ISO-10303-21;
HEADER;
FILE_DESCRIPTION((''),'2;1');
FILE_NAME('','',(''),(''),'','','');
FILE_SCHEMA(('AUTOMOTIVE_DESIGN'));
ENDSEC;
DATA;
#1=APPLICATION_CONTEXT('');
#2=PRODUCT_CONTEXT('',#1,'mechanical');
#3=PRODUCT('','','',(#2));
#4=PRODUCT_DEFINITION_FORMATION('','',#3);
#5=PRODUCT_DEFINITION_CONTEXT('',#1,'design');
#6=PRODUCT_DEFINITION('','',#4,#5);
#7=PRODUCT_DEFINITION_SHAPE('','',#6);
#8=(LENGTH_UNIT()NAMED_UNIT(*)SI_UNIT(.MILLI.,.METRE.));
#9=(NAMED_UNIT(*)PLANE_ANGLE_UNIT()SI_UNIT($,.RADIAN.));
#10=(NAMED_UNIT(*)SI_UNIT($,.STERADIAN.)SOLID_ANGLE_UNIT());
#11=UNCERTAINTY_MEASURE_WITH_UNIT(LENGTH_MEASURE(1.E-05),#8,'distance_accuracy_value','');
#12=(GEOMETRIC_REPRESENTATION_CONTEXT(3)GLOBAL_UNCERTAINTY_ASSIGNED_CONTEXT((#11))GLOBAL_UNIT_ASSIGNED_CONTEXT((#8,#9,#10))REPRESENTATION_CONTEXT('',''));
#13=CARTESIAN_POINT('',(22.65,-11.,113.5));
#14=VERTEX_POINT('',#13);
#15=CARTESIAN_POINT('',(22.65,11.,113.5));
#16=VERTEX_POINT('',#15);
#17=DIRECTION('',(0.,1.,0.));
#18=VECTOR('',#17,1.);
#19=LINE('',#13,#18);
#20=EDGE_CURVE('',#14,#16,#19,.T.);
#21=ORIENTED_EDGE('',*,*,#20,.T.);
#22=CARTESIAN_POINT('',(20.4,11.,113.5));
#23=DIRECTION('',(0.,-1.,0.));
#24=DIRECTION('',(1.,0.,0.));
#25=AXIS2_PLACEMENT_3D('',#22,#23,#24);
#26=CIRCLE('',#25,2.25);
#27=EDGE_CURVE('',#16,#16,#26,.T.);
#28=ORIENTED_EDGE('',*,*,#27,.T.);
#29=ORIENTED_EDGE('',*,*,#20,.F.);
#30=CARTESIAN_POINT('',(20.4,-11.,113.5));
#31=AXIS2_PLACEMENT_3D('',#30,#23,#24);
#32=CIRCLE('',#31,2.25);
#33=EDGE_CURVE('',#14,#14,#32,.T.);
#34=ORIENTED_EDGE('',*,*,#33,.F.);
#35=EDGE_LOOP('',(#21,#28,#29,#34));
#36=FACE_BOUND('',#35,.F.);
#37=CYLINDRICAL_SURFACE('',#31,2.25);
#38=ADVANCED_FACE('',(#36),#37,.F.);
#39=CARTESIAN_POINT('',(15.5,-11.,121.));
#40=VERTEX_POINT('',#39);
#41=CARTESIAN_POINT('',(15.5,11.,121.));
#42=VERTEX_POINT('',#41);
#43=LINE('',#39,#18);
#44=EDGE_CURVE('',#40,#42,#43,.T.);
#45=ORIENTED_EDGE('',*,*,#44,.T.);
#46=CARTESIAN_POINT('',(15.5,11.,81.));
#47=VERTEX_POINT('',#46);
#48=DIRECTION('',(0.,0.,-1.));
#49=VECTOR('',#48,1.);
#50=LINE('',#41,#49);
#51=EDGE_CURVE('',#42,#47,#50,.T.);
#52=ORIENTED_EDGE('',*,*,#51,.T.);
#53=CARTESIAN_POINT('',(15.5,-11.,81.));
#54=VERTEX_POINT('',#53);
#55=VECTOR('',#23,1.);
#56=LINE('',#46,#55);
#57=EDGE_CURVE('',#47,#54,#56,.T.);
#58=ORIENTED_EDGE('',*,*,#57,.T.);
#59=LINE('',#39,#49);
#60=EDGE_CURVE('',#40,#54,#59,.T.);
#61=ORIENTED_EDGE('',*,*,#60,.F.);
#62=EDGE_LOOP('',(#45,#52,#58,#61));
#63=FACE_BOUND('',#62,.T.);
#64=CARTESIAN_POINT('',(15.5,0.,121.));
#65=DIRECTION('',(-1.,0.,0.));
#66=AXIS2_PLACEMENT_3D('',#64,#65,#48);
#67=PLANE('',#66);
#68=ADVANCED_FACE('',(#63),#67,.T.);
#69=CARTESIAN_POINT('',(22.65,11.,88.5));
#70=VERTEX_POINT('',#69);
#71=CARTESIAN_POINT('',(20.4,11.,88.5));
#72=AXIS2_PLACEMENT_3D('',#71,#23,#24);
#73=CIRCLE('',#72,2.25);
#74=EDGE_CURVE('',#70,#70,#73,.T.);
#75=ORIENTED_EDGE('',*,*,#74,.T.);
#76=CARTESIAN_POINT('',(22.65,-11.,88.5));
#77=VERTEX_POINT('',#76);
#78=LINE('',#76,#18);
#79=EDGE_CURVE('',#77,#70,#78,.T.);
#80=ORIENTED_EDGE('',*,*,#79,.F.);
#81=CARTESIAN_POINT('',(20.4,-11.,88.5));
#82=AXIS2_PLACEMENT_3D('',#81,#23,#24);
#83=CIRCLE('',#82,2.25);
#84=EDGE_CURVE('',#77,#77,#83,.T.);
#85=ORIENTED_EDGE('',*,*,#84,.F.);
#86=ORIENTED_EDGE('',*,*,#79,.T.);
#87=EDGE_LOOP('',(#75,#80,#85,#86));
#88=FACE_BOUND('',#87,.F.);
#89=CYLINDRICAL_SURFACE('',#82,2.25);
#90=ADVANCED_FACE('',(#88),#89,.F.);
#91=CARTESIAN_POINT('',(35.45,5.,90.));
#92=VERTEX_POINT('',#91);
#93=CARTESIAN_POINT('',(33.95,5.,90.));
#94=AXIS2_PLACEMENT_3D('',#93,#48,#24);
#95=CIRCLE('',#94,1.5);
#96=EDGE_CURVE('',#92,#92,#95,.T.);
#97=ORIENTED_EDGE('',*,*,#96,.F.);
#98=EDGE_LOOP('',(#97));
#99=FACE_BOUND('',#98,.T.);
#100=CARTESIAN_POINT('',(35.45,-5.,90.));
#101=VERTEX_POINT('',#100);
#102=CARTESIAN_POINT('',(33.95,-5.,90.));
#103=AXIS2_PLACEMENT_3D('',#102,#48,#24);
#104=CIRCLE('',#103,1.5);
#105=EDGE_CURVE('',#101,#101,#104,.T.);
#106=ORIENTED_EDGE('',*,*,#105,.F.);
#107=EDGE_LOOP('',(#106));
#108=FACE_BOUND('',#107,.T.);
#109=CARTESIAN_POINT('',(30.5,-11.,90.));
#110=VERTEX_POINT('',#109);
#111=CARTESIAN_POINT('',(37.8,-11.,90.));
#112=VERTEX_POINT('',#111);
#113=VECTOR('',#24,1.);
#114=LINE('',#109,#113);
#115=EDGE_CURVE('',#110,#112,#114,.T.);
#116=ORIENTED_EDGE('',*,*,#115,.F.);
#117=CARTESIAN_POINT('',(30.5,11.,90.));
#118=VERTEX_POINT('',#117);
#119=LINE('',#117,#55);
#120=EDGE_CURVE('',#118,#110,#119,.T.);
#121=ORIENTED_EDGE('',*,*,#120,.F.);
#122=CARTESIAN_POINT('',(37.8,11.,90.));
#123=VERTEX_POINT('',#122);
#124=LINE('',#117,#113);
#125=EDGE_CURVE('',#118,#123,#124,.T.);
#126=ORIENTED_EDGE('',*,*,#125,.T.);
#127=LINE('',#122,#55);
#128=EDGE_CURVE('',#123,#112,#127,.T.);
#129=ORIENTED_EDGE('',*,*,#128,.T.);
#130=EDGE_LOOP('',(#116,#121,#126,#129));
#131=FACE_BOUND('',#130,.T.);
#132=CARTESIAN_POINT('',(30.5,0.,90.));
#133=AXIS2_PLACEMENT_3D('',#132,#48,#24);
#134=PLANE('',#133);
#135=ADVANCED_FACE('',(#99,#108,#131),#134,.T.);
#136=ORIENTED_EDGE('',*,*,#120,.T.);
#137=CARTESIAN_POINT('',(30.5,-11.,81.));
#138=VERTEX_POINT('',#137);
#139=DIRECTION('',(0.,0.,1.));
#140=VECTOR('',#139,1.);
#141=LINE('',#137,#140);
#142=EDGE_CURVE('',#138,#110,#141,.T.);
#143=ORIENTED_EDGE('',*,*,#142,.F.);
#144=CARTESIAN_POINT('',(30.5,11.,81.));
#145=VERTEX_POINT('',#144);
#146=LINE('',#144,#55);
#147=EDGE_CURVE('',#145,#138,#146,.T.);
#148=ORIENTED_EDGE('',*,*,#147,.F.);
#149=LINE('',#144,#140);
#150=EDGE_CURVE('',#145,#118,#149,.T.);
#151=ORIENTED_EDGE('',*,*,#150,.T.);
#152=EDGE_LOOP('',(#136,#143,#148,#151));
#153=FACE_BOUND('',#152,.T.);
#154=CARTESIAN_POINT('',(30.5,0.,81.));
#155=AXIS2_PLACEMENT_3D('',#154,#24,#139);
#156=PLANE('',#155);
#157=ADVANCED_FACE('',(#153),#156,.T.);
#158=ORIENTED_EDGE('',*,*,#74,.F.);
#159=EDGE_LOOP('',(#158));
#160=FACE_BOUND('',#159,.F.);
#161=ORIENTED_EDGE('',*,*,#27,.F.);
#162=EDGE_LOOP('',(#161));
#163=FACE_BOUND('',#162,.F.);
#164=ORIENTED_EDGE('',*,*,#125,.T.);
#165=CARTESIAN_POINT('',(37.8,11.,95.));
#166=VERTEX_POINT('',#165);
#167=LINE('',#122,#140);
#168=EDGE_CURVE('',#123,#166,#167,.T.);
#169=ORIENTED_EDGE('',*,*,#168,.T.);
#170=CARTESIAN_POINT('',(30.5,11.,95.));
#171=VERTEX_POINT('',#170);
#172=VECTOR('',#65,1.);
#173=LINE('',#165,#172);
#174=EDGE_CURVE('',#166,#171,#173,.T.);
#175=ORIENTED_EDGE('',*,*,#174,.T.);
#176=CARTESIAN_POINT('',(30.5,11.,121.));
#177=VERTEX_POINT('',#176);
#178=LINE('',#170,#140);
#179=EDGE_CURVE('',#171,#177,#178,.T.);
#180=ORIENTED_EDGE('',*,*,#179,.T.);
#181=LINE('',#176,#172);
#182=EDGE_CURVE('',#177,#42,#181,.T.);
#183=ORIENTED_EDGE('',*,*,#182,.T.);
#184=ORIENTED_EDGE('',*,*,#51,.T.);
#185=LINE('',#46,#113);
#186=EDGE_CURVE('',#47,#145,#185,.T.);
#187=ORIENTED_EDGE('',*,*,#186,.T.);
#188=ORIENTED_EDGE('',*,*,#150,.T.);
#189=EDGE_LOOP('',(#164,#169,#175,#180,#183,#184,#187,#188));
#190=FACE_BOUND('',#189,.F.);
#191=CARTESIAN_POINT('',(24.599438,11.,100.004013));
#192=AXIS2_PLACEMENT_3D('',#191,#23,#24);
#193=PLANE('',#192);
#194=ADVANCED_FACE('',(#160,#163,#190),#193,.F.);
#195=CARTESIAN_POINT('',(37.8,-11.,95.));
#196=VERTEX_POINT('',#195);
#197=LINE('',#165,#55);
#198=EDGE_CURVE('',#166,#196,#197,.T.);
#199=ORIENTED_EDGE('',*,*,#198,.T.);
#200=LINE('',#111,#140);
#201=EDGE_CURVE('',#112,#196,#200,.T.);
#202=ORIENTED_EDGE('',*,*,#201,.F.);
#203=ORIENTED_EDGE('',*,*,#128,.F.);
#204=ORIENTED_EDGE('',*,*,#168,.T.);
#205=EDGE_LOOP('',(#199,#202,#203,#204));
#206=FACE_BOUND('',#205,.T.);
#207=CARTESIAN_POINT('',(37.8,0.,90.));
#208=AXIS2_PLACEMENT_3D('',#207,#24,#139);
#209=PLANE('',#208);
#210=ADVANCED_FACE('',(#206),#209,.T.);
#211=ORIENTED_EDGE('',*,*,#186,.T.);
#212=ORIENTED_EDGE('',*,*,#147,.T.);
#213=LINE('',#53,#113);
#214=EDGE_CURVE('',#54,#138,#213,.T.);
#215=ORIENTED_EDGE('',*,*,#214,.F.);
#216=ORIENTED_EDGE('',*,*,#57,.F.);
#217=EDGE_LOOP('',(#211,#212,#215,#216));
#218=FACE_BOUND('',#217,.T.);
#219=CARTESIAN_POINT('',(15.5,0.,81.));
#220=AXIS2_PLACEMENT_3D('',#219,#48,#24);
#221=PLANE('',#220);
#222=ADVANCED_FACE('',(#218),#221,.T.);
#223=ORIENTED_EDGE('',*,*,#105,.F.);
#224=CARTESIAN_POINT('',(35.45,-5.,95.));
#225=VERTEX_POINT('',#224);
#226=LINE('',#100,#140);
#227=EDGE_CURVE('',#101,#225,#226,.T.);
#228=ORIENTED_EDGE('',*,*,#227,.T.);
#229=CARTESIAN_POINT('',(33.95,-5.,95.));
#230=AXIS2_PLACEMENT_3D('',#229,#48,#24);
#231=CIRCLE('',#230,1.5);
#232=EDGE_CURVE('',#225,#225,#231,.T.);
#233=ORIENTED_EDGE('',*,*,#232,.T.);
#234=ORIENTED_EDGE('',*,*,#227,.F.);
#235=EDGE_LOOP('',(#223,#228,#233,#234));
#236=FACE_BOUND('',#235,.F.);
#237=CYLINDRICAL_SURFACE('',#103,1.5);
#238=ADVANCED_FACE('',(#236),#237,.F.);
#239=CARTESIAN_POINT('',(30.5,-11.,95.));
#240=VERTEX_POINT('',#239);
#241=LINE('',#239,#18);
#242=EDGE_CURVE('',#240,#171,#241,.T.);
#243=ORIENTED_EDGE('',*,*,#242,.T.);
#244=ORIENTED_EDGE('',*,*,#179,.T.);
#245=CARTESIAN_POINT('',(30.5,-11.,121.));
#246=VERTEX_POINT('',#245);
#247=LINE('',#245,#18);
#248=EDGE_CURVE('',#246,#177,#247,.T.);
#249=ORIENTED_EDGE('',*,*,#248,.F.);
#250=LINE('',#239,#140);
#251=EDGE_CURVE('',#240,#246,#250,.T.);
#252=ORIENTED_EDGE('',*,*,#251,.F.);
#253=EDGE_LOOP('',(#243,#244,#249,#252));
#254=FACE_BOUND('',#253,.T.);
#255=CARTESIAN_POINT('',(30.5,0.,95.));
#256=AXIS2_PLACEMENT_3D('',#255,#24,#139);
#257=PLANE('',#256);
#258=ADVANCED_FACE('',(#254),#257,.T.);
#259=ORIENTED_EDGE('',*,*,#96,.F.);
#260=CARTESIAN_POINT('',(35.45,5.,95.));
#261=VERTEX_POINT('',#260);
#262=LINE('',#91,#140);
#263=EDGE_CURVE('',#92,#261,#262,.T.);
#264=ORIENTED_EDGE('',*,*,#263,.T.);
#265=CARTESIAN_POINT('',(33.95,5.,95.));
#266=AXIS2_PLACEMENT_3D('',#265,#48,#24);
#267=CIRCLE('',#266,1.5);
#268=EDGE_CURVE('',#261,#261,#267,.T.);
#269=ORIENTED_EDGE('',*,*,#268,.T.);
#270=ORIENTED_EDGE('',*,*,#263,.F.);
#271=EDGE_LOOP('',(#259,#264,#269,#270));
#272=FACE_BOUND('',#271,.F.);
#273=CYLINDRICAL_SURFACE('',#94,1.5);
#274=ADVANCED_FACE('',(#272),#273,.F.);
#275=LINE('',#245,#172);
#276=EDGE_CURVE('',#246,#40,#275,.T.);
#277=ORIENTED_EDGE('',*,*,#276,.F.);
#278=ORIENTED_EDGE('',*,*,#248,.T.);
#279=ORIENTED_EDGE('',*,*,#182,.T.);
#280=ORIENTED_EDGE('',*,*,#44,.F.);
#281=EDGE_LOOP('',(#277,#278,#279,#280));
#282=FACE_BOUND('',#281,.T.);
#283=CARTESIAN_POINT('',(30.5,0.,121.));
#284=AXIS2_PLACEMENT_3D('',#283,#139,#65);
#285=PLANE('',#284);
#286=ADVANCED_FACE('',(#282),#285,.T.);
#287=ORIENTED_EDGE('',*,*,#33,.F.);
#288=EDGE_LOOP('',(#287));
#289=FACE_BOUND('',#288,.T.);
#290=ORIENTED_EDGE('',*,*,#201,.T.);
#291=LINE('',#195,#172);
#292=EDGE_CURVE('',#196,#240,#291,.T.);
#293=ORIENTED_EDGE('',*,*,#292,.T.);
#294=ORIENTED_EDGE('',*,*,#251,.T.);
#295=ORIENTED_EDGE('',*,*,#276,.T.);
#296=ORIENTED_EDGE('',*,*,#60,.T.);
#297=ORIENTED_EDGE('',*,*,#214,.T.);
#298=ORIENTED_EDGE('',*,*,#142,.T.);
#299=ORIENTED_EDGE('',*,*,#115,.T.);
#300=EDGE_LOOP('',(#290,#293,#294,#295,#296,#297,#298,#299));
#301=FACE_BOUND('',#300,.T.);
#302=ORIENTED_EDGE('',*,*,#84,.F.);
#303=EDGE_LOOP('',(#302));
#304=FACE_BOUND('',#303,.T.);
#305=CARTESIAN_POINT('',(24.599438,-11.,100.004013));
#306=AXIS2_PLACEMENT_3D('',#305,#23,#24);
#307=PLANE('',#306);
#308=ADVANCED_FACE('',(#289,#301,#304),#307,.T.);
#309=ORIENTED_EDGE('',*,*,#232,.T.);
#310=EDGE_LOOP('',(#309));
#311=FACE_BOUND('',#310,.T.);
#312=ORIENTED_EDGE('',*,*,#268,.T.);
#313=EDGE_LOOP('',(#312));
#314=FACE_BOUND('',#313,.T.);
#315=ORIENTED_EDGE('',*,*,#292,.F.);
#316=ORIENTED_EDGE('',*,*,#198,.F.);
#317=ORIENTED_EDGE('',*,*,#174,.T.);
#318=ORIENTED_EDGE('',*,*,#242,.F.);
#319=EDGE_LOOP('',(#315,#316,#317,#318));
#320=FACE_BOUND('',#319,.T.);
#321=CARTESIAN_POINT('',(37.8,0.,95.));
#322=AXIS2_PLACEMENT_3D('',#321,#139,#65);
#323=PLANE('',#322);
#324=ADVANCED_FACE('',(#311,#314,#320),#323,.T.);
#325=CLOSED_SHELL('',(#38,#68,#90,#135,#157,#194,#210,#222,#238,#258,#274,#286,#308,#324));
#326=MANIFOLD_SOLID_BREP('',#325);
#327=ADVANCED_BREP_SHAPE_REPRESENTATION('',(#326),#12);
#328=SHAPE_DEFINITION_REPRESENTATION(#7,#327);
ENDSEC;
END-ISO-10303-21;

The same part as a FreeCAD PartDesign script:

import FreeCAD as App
import Part
import Sketcher

V = App.Vector

doc = App.newDocument("Part")
params = doc.addObject("Spreadsheet::Sheet", "Params")
for row, (alias, value) in enumerate([
    ("sketch1_width", "15 mm"),
    ("sketch1_height", "40 mm"),
    ("sketch1_height2", "9 mm"),
    ("sketch1_height3", "5 mm"),
    ("sketch1_width2", "7.3 mm"),
    ("pad1_length", "22 mm"),
    ("sketch2_diameter", "4.5 mm"),
    ("pocket1_length", "25 mm"),
    ("sketch3_diameter", "3 mm"),
    ("pocket2_length", "5 mm"),
], start=1):
    params.set(f"A{row}", alias)
    params.set(f"B{row}", "=" + value)
    params.setAlias(f"B{row}", alias)

body = doc.addObject("PartDesign::Body", "Body")

# Sketch on XZ plane
sketch1 = doc.addObject("Sketcher::SketchObject", "Sketch")
body.addObject(sketch1)
sketch1.AttachmentSupport = (doc.XZ_Plane, [""])
sketch1.MapMode = "FlatFace"
sketch1.addGeometry([
    Part.LineSegment(V(-1.5, 40, 0), V(-1.5, 0, 0)),  # 0
    Part.LineSegment(V(-1.5, 0, 0), V(13.5, 0, 0)),  # 1
    Part.LineSegment(V(13.5, 0, 0), V(13.5, 9, 0)),  # 2
    Part.LineSegment(V(13.5, 9, 0), V(20.8, 9, 0)),  # 3
    Part.LineSegment(V(20.8, 9, 0), V(20.8, 14, 0)),  # 4
    Part.LineSegment(V(20.8, 14, 0), V(13.5, 14, 0)),  # 5
    Part.LineSegment(V(13.5, 14, 0), V(13.5, 40, 0)),  # 6
    Part.LineSegment(V(13.5, 40, 0), V(-1.5, 40, 0)),  # 7
], False)
sketch1.addConstraint([
    Sketcher.Constraint("Coincident", 0, 2, 1, 1),
    Sketcher.Constraint("Coincident", 1, 2, 2, 1),
    Sketcher.Constraint("Coincident", 2, 2, 3, 1),
    Sketcher.Constraint("Coincident", 3, 2, 4, 1),
    Sketcher.Constraint("Coincident", 4, 2, 5, 1),
    Sketcher.Constraint("Coincident", 5, 2, 6, 1),
    Sketcher.Constraint("Coincident", 6, 2, 7, 1),
    Sketcher.Constraint("Coincident", 7, 2, 0, 1),
    Sketcher.Constraint("Vertical", 0),
    Sketcher.Constraint("Horizontal", 1),
    Sketcher.Constraint("Vertical", 2),
    Sketcher.Constraint("Horizontal", 3),
    Sketcher.Constraint("Vertical", 4),
    Sketcher.Constraint("Horizontal", 5),
    Sketcher.Constraint("Vertical", 6),
    Sketcher.Constraint("Horizontal", 7),
    Sketcher.Constraint("PointOnObject", 0, 2, -1),
    Sketcher.Constraint("Vertical", 2, 2, 5, 2),
    Sketcher.Constraint("DistanceX", 1, 1, 1, 2, 15.0),
    Sketcher.Constraint("DistanceY", 0, 2, 0, 1, 40.0),
    Sketcher.Constraint("DistanceY", 2, 1, 2, 2, 9.0),
    Sketcher.Constraint("DistanceY", 4, 1, 4, 2, 5.0),
    Sketcher.Constraint("DistanceX", 3, 1, 3, 2, 7.3),
    Sketcher.Constraint("DistanceX", 0, 2, -1, 1, 1.5),
])
sketch1.setExpression("Constraints[18]", "Params.sketch1_width")
sketch1.setExpression("Constraints[19]", "Params.sketch1_height")
sketch1.setExpression("Constraints[20]", "Params.sketch1_height2")
sketch1.setExpression("Constraints[21]", "Params.sketch1_height3")
sketch1.setExpression("Constraints[22]", "Params.sketch1_width2")
pad1 = doc.addObject("PartDesign::Pad", "Pad")
body.addObject(pad1)
pad1.Profile = sketch1
pad1.setExpression("Length", "Params.pad1_length")
pad1.Midplane = True

# Sketch on XZ plane
sketch2 = doc.addObject("Sketcher::SketchObject", "Sketch001")
body.addObject(sketch2)
sketch2.AttachmentSupport = (doc.XZ_Plane, [""])
sketch2.MapMode = "FlatFace"
sketch2.AttachmentOffset = App.Placement(V(0, 0, 11), App.Rotation())
sketch2.addGeometry([
    Part.Circle(V(3.4, 32.5, 0), V(0, 0, 1), 2.25),
    Part.Circle(V(3.4, 7.5, 0), V(0, 0, 1), 2.25),
], False)
sketch2.addConstraint([
    Sketcher.Constraint("Equal", 0, 1),
    Sketcher.Constraint("Vertical", 0, 3, 1, 3),
    Sketcher.Constraint("Diameter", 0, 4.5),
    Sketcher.Constraint("DistanceY", 1, 3, 0, 3, 25.0),
    Sketcher.Constraint("DistanceX", -1, 1, 0, 3, 3.4),
    Sketcher.Constraint("DistanceY", -1, 1, 0, 3, 32.5),
])
sketch2.setExpression("Constraints[2]", "Params.sketch2_diameter")
pocket1 = doc.addObject("PartDesign::Pocket", "Pocket")
body.addObject(pocket1)
pocket1.Profile = sketch2
pocket1.setExpression("Length", "Params.pocket1_length")

# Sketch on XY plane
sketch3 = doc.addObject("Sketcher::SketchObject", "Sketch002")
body.addObject(sketch3)
sketch3.AttachmentSupport = (doc.XY_Plane, [""])
sketch3.MapMode = "FlatFace"
sketch3.AttachmentOffset = App.Placement(V(0, 0, 9), App.Rotation())
sketch3.addGeometry([
    Part.Circle(V(16.95, -5, 0), V(0, 0, 1), 1.5),
    Part.Circle(V(16.95, 5, 0), V(0, 0, 1), 1.5),
], False)
sketch3.addConstraint([
    Sketcher.Constraint("Equal", 0, 1),
    Sketcher.Constraint("Symmetric", 0, 3, 1, 3, -1),
    Sketcher.Constraint("Diameter", 0, 3.0),
    Sketcher.Constraint("DistanceY", 0, 3, -1, 1, 5.0),
    Sketcher.Constraint("DistanceX", -1, 1, 0, 3, 16.95),
])
sketch3.setExpression("Constraints[2]", "Params.sketch3_diameter")
pocket2 = doc.addObject("PartDesign::Pocket", "Pocket001")
body.addObject(pocket2)
pocket2.Profile = sketch3
pocket2.setExpression("Length", "Params.pocket2_length")
pocket2.Reversed = True
body2 = doc.addObject("PartDesign::Body", "Body001")
doc.recompute()

body.Placement = App.Placement(V(-17, 0, 81), App.Rotation(V(0, 0, 1), 180))
boolean = doc.addObject("PartDesign::Boolean", "Boolean")
body2.addObject(boolean)
boolean.Type = "Fuse"
boolean.addObjects([body])
body3 = doc.addObject("PartDesign::Body", "Body002")
doc.recompute()

body2.Placement = App.Placement(V(0, 0, 0), App.Rotation(V(0, 0, 1), 180))
boolean2 = doc.addObject("PartDesign::Boolean", "Boolean001")
body3.addObject(boolean2)
boolean2.Type = "Fuse"
boolean2.addObjects([body2])

doc.recompute()
